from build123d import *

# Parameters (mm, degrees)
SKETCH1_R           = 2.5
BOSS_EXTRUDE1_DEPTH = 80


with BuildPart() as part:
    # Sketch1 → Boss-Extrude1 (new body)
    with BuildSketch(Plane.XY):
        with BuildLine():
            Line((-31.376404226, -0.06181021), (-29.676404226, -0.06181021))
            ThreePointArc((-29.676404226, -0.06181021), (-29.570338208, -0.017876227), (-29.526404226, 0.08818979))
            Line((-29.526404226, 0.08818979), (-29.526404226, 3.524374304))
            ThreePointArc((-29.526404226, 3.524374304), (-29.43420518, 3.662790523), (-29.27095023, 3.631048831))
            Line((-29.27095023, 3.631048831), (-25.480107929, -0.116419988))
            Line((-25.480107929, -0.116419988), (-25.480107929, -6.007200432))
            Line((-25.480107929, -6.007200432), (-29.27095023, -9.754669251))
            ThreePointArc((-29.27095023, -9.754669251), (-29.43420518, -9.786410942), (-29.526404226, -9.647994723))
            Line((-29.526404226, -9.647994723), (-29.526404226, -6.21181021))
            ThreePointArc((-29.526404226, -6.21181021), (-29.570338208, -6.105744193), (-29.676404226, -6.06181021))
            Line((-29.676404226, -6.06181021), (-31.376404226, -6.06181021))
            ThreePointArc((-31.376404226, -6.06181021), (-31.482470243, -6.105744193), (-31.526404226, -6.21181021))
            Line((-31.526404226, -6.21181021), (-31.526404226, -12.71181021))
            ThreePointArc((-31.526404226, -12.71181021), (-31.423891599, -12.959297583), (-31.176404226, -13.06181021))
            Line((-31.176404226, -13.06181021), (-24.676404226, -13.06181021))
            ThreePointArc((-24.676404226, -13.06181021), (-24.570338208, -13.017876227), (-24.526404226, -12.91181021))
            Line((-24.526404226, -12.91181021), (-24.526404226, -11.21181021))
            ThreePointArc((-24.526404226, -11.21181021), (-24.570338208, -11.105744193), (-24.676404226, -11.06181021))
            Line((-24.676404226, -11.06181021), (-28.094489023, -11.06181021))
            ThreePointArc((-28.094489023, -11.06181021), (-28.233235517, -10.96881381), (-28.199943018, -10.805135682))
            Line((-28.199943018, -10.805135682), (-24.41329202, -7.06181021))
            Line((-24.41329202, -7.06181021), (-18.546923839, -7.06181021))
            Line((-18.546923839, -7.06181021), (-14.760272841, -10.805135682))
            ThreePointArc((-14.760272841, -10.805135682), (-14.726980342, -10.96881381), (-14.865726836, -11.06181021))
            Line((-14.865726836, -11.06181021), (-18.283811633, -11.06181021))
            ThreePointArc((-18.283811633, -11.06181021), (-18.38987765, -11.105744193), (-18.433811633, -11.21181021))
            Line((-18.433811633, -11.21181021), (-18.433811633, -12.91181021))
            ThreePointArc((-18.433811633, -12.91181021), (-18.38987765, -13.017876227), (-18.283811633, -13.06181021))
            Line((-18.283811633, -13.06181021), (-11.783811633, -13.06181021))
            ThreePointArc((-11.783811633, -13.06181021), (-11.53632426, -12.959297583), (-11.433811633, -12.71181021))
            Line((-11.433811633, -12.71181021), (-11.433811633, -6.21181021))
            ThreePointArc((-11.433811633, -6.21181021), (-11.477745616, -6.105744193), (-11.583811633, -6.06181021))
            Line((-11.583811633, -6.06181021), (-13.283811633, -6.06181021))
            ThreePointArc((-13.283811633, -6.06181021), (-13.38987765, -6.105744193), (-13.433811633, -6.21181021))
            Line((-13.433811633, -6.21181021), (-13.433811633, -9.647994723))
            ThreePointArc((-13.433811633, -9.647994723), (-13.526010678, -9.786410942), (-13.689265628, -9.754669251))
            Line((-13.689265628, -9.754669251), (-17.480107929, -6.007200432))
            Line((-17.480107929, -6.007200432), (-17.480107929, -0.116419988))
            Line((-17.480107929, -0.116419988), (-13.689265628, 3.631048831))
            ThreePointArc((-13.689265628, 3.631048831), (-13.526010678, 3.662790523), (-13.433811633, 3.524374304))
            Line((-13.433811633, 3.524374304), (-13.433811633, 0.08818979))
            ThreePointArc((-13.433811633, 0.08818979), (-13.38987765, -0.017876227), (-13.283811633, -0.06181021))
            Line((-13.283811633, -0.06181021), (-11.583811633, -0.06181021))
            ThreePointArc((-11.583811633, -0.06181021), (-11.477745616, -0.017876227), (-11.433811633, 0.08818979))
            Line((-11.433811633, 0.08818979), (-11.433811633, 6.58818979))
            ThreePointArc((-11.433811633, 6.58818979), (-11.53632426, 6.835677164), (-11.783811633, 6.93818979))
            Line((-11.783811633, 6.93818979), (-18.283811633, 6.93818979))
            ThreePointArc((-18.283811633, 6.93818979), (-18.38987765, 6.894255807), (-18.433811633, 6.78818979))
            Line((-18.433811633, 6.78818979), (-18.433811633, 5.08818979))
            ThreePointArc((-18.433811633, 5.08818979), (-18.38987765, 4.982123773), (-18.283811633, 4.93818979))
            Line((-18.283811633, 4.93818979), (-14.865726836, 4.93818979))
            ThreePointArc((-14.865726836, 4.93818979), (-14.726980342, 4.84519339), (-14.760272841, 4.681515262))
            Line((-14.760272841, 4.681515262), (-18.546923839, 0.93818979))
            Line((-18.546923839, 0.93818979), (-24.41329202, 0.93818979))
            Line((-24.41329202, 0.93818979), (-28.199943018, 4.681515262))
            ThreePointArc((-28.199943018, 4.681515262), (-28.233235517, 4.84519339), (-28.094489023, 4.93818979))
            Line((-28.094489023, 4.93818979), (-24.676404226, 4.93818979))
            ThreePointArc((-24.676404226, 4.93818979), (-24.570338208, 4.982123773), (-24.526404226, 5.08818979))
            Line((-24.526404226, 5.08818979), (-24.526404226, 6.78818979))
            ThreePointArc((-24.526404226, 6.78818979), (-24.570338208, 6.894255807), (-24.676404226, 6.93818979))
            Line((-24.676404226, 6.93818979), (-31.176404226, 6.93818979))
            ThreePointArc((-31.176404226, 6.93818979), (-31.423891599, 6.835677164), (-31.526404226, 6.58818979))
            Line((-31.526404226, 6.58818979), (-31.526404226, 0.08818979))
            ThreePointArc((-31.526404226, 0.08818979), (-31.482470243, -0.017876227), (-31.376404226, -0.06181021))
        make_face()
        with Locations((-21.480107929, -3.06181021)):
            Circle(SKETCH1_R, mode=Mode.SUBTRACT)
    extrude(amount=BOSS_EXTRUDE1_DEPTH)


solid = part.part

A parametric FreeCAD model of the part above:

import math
import FreeCAD as App
import Part
import Sketcher

V = App.Vector

doc = App.newDocument("Part")
body = doc.addObject("PartDesign::Body", "Body")

sketch1 = doc.addObject("Sketcher::SketchObject", "Sketch")
body.addObject(sketch1)
sketch1.AttachmentSupport = (doc.XY_Plane, [""])
sketch1.MapMode = "FlatFace"
sketch1.addGeometry(Part.LineSegment(V(-31.376404, -0.06181, 0), V(-29.676404, -0.06181, 0)), False)
sketch1.addGeometry(Part.ArcOfCircle(Part.Circle(V(-29.676404, 0.08819, 0), V(0, 0, 1), 0.15), math.radians(-90), math.radians(0)), False)
sketch1.addGeometry(Part.LineSegment(V(-29.526404, 0.08819, 0), V(-29.526404, 3.524374, 0)), False)
sketch1.addGeometry(Part.ArcOfCircle(Part.Circle(V(-29.376404, 3.524374, 0), V(0, 0, 1), 0.15), math.radians(45.329661), math.radians(180)), False)
sketch1.addGeometry(Part.LineSegment(V(-29.27095, 3.631049, 0), V(-25.480108, -0.11642, 0)), False)
sketch1.addGeometry(Part.LineSegment(V(-25.480108, -0.11642, 0), V(-25.480108, -6.0072, 0)), False)
sketch1.addGeometry(Part.LineSegment(V(-25.480108, -6.0072, 0), V(-29.27095, -9.754669, 0)), False)
sketch1.addGeometry(Part.ArcOfCircle(Part.Circle(V(-29.376404, -9.647995, 0), V(0, 0, 1), 0.15), math.radians(-180), math.radians(-45.329662)), False)
sketch1.addGeometry(Part.LineSegment(V(-29.526404, -9.647995, 0), V(-29.526404, -6.21181, 0)), False)
sketch1.addGeometry(Part.ArcOfCircle(Part.Circle(V(-29.676404, -6.21181, 0), V(0, 0, 1), 0.15), math.radians(0), math.radians(90)), False)
sketch1.addGeometry(Part.LineSegment(V(-29.676404, -6.06181, 0), V(-31.376404, -6.06181, 0)), False)
sketch1.addGeometry(Part.ArcOfCircle(Part.Circle(V(-31.376404, -6.21181, 0), V(0, 0, 1), 0.15), math.radians(90), math.radians(180)), False)
sketch1.addGeometry(Part.LineSegment(V(-31.526404, -6.21181, 0), V(-31.526404, -12.71181, 0)), False)
sketch1.addGeometry(Part.ArcOfCircle(Part.Circle(V(-31.176404, -12.71181, 0), V(0, 0, 1), 0.35), math.radians(-180), math.radians(-90)), False)
sketch1.addGeometry(Part.LineSegment(V(-31.176404, -13.06181, 0), V(-24.676404, -13.06181, 0)), False)
sketch1.addGeometry(Part.ArcOfCircle(Part.Circle(V(-24.676404, -12.91181, 0), V(0, 0, 1), 0.15), math.radians(-90), math.radians(0)), False)
sketch1.addGeometry(Part.LineSegment(V(-24.526404, -12.91181, 0), V(-24.526404, -11.21181, 0)), False)
sketch1.addGeometry(Part.ArcOfCircle(Part.Circle(V(-24.676404, -11.21181, 0), V(0, 0, 1), 0.15), math.radians(0), math.radians(90)), False)
sketch1.addGeometry(Part.LineSegment(V(-24.676404, -11.06181, 0), V(-28.094489, -11.06181, 0)), False)
sketch1.addGeometry(Part.ArcOfCircle(Part.Circle(V(-28.094489, -10.91181, 0), V(0, 0, 1), 0.15), math.radians(134.670338), math.radians(270)), False)
sketch1.addGeometry(Part.LineSegment(V(-28.199943, -10.805136, 0), V(-24.413292, -7.06181, 0)), False)
sketch1.addGeometry(Part.LineSegment(V(-24.413292, -7.06181, 0), V(-18.546924, -7.06181, 0)), False)
sketch1.addGeometry(Part.LineSegment(V(-18.546924, -7.06181, 0), V(-14.760273, -10.805136, 0)), False)
sketch1.addGeometry(Part.ArcOfCircle(Part.Circle(V(-14.865727, -10.91181, 0), V(0, 0, 1), 0.15), math.radians(-90), math.radians(45.329662)), False)
sketch1.addGeometry(Part.LineSegment(V(-14.865727, -11.06181, 0), V(-18.283812, -11.06181, 0)), False)
sketch1.addGeometry(Part.ArcOfCircle(Part.Circle(V(-18.283812, -11.21181, 0), V(0, 0, 1), 0.15), math.radians(90), math.radians(180)), False)
sketch1.addGeometry(Part.LineSegment(V(-18.433812, -11.21181, 0), V(-18.433812, -12.91181, 0)), False)
sketch1.addGeometry(Part.ArcOfCircle(Part.Circle(V(-18.283812, -12.91181, 0), V(0, 0, 1), 0.15), math.radians(-180), math.radians(-90)), False)
sketch1.addGeometry(Part.LineSegment(V(-18.283812, -13.06181, 0), V(-11.783812, -13.06181, 0)), False)
sketch1.addGeometry(Part.ArcOfCircle(Part.Circle(V(-11.783812, -12.71181, 0), V(0, 0, 1), 0.35), math.radians(-90), math.radians(0)), False)
sketch1.addGeometry(Part.LineSegment(V(-11.433812, -12.71181, 0), V(-11.433812, -6.21181, 0)), False)
sketch1.addGeometry(Part.ArcOfCircle(Part.Circle(V(-11.583812, -6.21181, 0), V(0, 0, 1), 0.15), math.radians(0), math.radians(90)), False)
sketch1.addGeometry(Part.LineSegment(V(-11.583812, -6.06181, 0), V(-13.283812, -6.06181, 0)), False)
sketch1.addGeometry(Part.ArcOfCircle(Part.Circle(V(-13.283812, -6.21181, 0), V(0, 0, 1), 0.15), math.radians(90), math.radians(180)), False)
sketch1.addGeometry(Part.LineSegment(V(-13.433812, -6.21181, 0), V(-13.433812, -9.647995, 0)), False)
sketch1.addGeometry(Part.ArcOfCircle(Part.Circle(V(-13.583812, -9.647995, 0), V(0, 0, 1), 0.15), math.radians(-134.670338), math.radians(0)), False)
sketch1.addGeometry(Part.LineSegment(V(-13.689266, -9.754669, 0), V(-17.480108, -6.0072, 0)), False)
sketch1.addGeometry(Part.LineSegment(V(-17.480108, -6.0072, 0), V(-17.480108, -0.11642, 0)), False)
sketch1.addGeometry(Part.LineSegment(V(-17.480108, -0.11642, 0), V(-13.689266, 3.631049, 0)), False)
sketch1.addGeometry(Part.ArcOfCircle(Part.Circle(V(-13.583812, 3.524374, 0), V(0, 0, 1), 0.15), math.radians(0), math.radians(134.670339)), False)
sketch1.addGeometry(Part.LineSegment(V(-13.433812, 3.524374, 0), V(-13.433812, 0.08819, 0)), False)
sketch1.addGeometry(Part.ArcOfCircle(Part.Circle(V(-13.283812, 0.08819, 0), V(0, 0, 1), 0.15), math.radians(-180), math.radians(-90)), False)
sketch1.addGeometry(Part.LineSegment(V(-13.283812, -0.06181, 0), V(-11.583812, -0.06181, 0)), False)
sketch1.addGeometry(Part.ArcOfCircle(Part.Circle(V(-11.583812, 0.08819, 0), V(0, 0, 1), 0.15), math.radians(-90), math.radians(0)), False)
sketch1.addGeometry(Part.LineSegment(V(-11.433812, 0.08819, 0), V(-11.433812, 6.58819, 0)), False)
sketch1.addGeometry(Part.ArcOfCircle(Part.Circle(V(-11.783812, 6.58819, 0), V(0, 0, 1), 0.35), math.radians(0), math.radians(90)), False)
sketch1.addGeometry(Part.LineSegment(V(-11.783812, 6.93819, 0), V(-18.283812, 6.93819, 0)), False)
sketch1.addGeometry(Part.ArcOfCircle(Part.Circle(V(-18.283812, 6.78819, 0), V(0, 0, 1), 0.15), math.radians(90), math.radians(180)), False)
sketch1.addGeometry(Part.LineSegment(V(-18.433812, 6.78819, 0), V(-18.433812, 5.08819, 0)), False)
sketch1.addGeometry(Part.ArcOfCircle(Part.Circle(V(-18.283812, 5.08819, 0), V(0, 0, 1), 0.15), math.radians(-180), math.radians(-90)), False)
sketch1.addGeometry(Part.LineSegment(V(-18.283812, 4.93819, 0), V(-14.865727, 4.93819, 0)), False)
sketch1.addGeometry(Part.ArcOfCircle(Part.Circle(V(-14.865727, 4.78819, 0), V(0, 0, 1), 0.15), math.radians(-45.329662), math.radians(90)), False)
sketch1.addGeometry(Part.LineSegment(V(-14.760273, 4.681515, 0), V(-18.546924, 0.93819, 0)), False)
sketch1.addGeometry(Part.LineSegment(V(-18.546924, 0.93819, 0), V(-24.413292, 0.93819, 0)), False)
sketch1.addGeometry(Part.LineSegment(V(-24.413292, 0.93819, 0), V(-28.199943, 4.681515, 0)), False)
sketch1.addGeometry(Part.ArcOfCircle(Part.Circle(V(-28.094489, 4.78819, 0), V(0, 0, 1), 0.15), math.radians(90), math.radians(225.329662)), False)
sketch1.addGeometry(Part.LineSegment(V(-28.094489, 4.93819, 0), V(-24.676404, 4.93819, 0)), False)
sketch1.addGeometry(Part.ArcOfCircle(Part.Circle(V(-24.676404, 5.08819, 0), V(0, 0, 1), 0.15), math.radians(-90), math.radians(0)), False)
sketch1.addGeometry(Part.LineSegment(V(-24.526404, 5.08819, 0), V(-24.526404, 6.78819, 0)), False)
sketch1.addGeometry(Part.ArcOfCircle(Part.Circle(V(-24.676404, 6.78819, 0), V(0, 0, 1), 0.15), math.radians(0), math.radians(90)), False)
sketch1.addGeometry(Part.LineSegment(V(-24.676404, 6.93819, 0), V(-31.176404, 6.93819, 0)), False)
sketch1.addGeometry(Part.ArcOfCircle(Part.Circle(V(-31.176404, 6.58819, 0), V(0, 0, 1), 0.35), math.radians(90), math.radians(180)), False)
sketch1.addGeometry(Part.LineSegment(V(-31.526404, 6.58819, 0), V(-31.526404, 0.08819, 0)), False)
sketch1.addGeometry(Part.ArcOfCircle(Part.Circle(V(-31.376404, 0.08819, 0), V(0, 0, 1), 0.15), math.radians(-180), math.radians(-90)), False)
sketch1.addGeometry(Part.Circle(V(-21.480108, -3.06181, 0), V(0, 0, 1), 2.5), False)
sketch1.addConstraint(Sketcher.Constraint("Tangent", 0, 2, 1, 1))
sketch1.addConstraint(Sketcher.Constraint("Tangent", 1, 2, 2, 1))
sketch1.addConstraint(Sketcher.Constraint("Tangent", 2, 2, 3, 2))
sketch1.addConstraint(Sketcher.Constraint("Tangent", 3, 1, 4, 1))
sketch1.addConstraint(Sketcher.Constraint("Coincident", 4, 2, 5, 1))
sketch1.addConstraint(Sketcher.Constraint("Coincident", 5, 2, 6, 1))
sketch1.addConstraint(Sketcher.Constraint("Tangent", 6, 2, 7, 2))
sketch1.addConstraint(Sketcher.Constraint("Tangent", 7, 1, 8, 1))
sketch1.addConstraint(Sketcher.Constraint("Tangent", 8, 2, 9, 1))
sketch1.addConstraint(Sketcher.Constraint("Tangent", 9, 2, 10, 1))
sketch1.addConstraint(Sketcher.Constraint("Tangent", 10, 2, 11, 1))
sketch1.addConstraint(Sketcher.Constraint("Tangent", 11, 2, 12, 1))
sketch1.addConstraint(Sketcher.Constraint("Tangent", 12, 2, 13, 1))
sketch1.addConstraint(Sketcher.Constraint("Tangent", 13, 2, 14, 1))
sketch1.addConstraint(Sketcher.Constraint("Tangent", 14, 2, 15, 1))
sketch1.addConstraint(Sketcher.Constraint("Tangent", 15, 2, 16, 1))
sketch1.addConstraint(Sketcher.Constraint("Tangent", 16, 2, 17, 1))
sketch1.addConstraint(Sketcher.Constraint("Tangent", 17, 2, 18, 1))
sketch1.addConstraint(Sketcher.Constraint("Tangent", 18, 2, 19, 2))
sketch1.addConstraint(Sketcher.Constraint("Tangent", 19, 1, 20, 1))
sketch1.addConstraint(Sketcher.Constraint("Coincident", 20, 2, 21, 1))
sketch1.addConstraint(Sketcher.Constraint("Coincident", 21, 2, 22, 1))
sketch1.addConstraint(Sketcher.Constraint("Tangent", 22, 2, 23, 2))
sketch1.addConstraint(Sketcher.Constraint("Tangent", 23, 1, 24, 1))
sketch1.addConstraint(Sketcher.Constraint("Tangent", 24, 2, 25, 1))
sketch1.addConstraint(Sketcher.Constraint("Tangent", 25, 2, 26, 1))
sketch1.addConstraint(Sketcher.Constraint("Tangent", 26, 2, 27, 1))
sketch1.addConstraint(Sketcher.Constraint("Tangent", 27, 2, 28, 1))
sketch1.addConstraint(Sketcher.Constraint("Tangent", 28, 2, 29, 1))
sketch1.addConstraint(Sketcher.Constraint("Tangent", 29, 2, 30, 1))
sketch1.addConstraint(Sketcher.Constraint("Tangent", 30, 2, 31, 1))
sketch1.addConstraint(Sketcher.Constraint("Tangent", 31, 2, 32, 1))
sketch1.addConstraint(Sketcher.Constraint("Tangent", 32, 2, 33, 1))
sketch1.addConstraint(Sketcher.Constraint("Tangent", 33, 2, 34, 1))
sketch1.addConstraint(Sketcher.Constraint("Tangent", 34, 2, 35, 2))
sketch1.addConstraint(Sketcher.Constraint("Tangent", 35, 1, 36, 1))
sketch1.addConstraint(Sketcher.Constraint("Coincident", 36, 2, 37, 1))
sketch1.addConstraint(Sketcher.Constraint("Coincident", 37, 2, 38, 1))
sketch1.addConstraint(Sketcher.Constraint("Tangent", 38, 2, 39, 2))
sketch1.addConstraint(Sketcher.Constraint("Tangent", 39, 1, 40, 1))
sketch1.addConstraint(Sketcher.Constraint("Tangent", 40, 2, 41, 1))
sketch1.addConstraint(Sketcher.Constraint("Tangent", 41, 2, 42, 1))
sketch1.addConstraint(Sketcher.Constraint("Tangent", 42, 2, 43, 1))
sketch1.addConstraint(Sketcher.Constraint("Tangent", 43, 2, 44, 1))
sketch1.addConstraint(Sketcher.Constraint("Tangent", 44, 2, 45, 1))
sketch1.addConstraint(Sketcher.Constraint("Tangent", 45, 2, 46, 1))
sketch1.addConstraint(Sketcher.Constraint("Tangent", 46, 2, 47, 1))
sketch1.addConstraint(Sketcher.Constraint("Tangent", 47, 2, 48, 1))
sketch1.addConstraint(Sketcher.Constraint("Tangent", 48, 2, 49, 1))
sketch1.addConstraint(Sketcher.Constraint("Tangent", 49, 2, 50, 1))
sketch1.addConstraint(Sketcher.Constraint("Tangent", 50, 2, 51, 2))
sketch1.addConstraint(Sketcher.Constraint("Tangent", 51, 1, 52, 1))
sketch1.addConstraint(Sketcher.Constraint("Coincident", 52, 2, 53, 1))
sketch1.addConstraint(Sketcher.Constraint("Coincident", 53, 2, 54, 1))
sketch1.addConstraint(Sketcher.Constraint("Tangent", 54, 2, 55, 2))
sketch1.addConstraint(Sketcher.Constraint("Tangent", 55, 1, 56, 1))
sketch1.addConstraint(Sketcher.Constraint("Tangent", 56, 2, 57, 1))
sketch1.addConstraint(Sketcher.Constraint("Tangent", 57, 2, 58, 1))
sketch1.addConstraint(Sketcher.Constraint("Tangent", 58, 2, 59, 1))
sketch1.addConstraint(Sketcher.Constraint("Tangent", 59, 2, 60, 1))
sketch1.addConstraint(Sketcher.Constraint("Tangent", 60, 2, 61, 1))
sketch1.addConstraint(Sketcher.Constraint("Tangent", 61, 2, 62, 1))
sketch1.addConstraint(Sketcher.Constraint("Tangent", 62, 2, 63, 1))
sketch1.addConstraint(Sketcher.Constraint("Tangent", 63, 2, 0, 1))
sketch1.addConstraint(Sketcher.Constraint("Horizontal", 0))
sketch1.addConstraint(Sketcher.Constraint("Vertical", 2))
sketch1.addConstraint(Sketcher.Constraint("Vertical", 5))
sketch1.addConstraint(Sketcher.Constraint("Vertical", 8))
sketch1.addConstraint(Sketcher.Constraint("Horizontal", 10))
sketch1.addConstraint(Sketcher.Constraint("Vertical", 12))
sketch1.addConstraint(Sketcher.Constraint("Horizontal", 14))
sketch1.addConstraint(Sketcher.Constraint("Vertical", 16))
sketch1.addConstraint(Sketcher.Constraint("Horizontal", 18))
sketch1.addConstraint(Sketcher.Constraint("Horizontal", 21))
sketch1.addConstraint(Sketcher.Constraint("Horizontal", 24))
sketch1.addConstraint(Sketcher.Constraint("Vertical", 26))
sketch1.addConstraint(Sketcher.Constraint("Horizontal", 28))
sketch1.addConstraint(Sketcher.Constraint("Vertical", 30))
sketch1.addConstraint(Sketcher.Constraint("Horizontal", 32))
sketch1.addConstraint(Sketcher.Constraint("Vertical", 34))
sketch1.addConstraint(Sketcher.Constraint("Vertical", 37))
sketch1.addConstraint(Sketcher.Constraint("Vertical", 40))
sketch1.addConstraint(Sketcher.Constraint("Horizontal", 42))
sketch1.addConstraint(Sketcher.Constraint("Vertical", 44))
sketch1.addConstraint(Sketcher.Constraint("Horizontal", 46))
sketch1.addConstraint(Sketcher.Constraint("Vertical", 48))
sketch1.addConstraint(Sketcher.Constraint("Horizontal", 50))
sketch1.addConstraint(Sketcher.Constraint("Horizontal", 53))
sketch1.addConstraint(Sketcher.Constraint("Horizontal", 56))
sketch1.addConstraint(Sketcher.Constraint("Vertical", 58))
sketch1.addConstraint(Sketcher.Constraint("Horizontal", 60))
sketch1.addConstraint(Sketcher.Constraint("Vertical", 62))
sketch1.addConstraint(Sketcher.Constraint("Equal", 1, 3))
sketch1.addConstraint(Sketcher.Constraint("Equal", 3, 7))
sketch1.addConstraint(Sketcher.Constraint("Equal", 7, 9))
sketch1.addConstraint(Sketcher.Constraint("Equal", 9, 11))
sketch1.addConstraint(Sketcher.Constraint("Equal", 11, 15))
sketch1.addConstraint(Sketcher.Constraint("Equal", 15, 17))
sketch1.addConstraint(Sketcher.Constraint("Equal", 17, 19))
sketch1.addConstraint(Sketcher.Constraint("Equal", 19, 23))
sketch1.addConstraint(Sketcher.Constraint("Equal", 23, 25))
sketch1.addConstraint(Sketcher.Constraint("Equal", 25, 27))
sketch1.addConstraint(Sketcher.Constraint("Equal", 13, 29))
sketch1.addConstraint(Sketcher.Constraint("Equal", 27, 31))
sketch1.addConstraint(Sketcher.Constraint("Equal", 31, 33))
sketch1.addConstraint(Sketcher.Constraint("Equal", 33, 35))
sketch1.addConstraint(Sketcher.Constraint("Equal", 35, 39))
sketch1.addConstraint(Sketcher.Constraint("Equal", 39, 41))
sketch1.addConstraint(Sketcher.Constraint("Equal", 41, 43))
sketch1.addConstraint(Sketcher.Constraint("Equal", 29, 45))
sketch1.addConstraint(Sketcher.Constraint("Equal", 43, 47))
sketch1.addConstraint(Sketcher.Constraint("Equal", 47, 49))
sketch1.addConstraint(Sketcher.Constraint("Equal", 49, 51))
sketch1.addConstraint(Sketcher.Constraint("Equal", 51, 55))
sketch1.addConstraint(Sketcher.Constraint("Equal", 55, 57))
sketch1.addConstraint(Sketcher.Constraint("Equal", 57, 59))
sketch1.addConstraint(Sketcher.Constraint("Equal", 45, 61))
sketch1.addConstraint(Sketcher.Constraint("Equal", 59, 63))
sketch1.addConstraint(Sketcher.Constraint("Parallel", 6, 20))
sketch1.addConstraint(Sketcher.Constraint("Parallel", 4, 22))
sketch1.addConstraint(Sketcher.Constraint("Parallel", 22, 36))
sketch1.addConstraint(Sketcher.Constraint("Parallel", 20, 38))
sketch1.addConstraint(Sketcher.Constraint("Parallel", 38, 52))
sketch1.addConstraint(Sketcher.Constraint("Parallel", 36, 54))
sketch1.addConstraint(Sketcher.Constraint("Horizontal", 19, 3, 23, 3))
sketch1.addConstraint(Sketcher.Constraint("Horizontal", 15, 3, 27, 3))
sketch1.addConstraint(Sketcher.Constraint("Horizontal", 11, 3, 31, 3))
sketch1.addConstraint(Sketcher.Constraint("Horizontal", 7, 3, 35, 3))
sketch1.addConstraint(Sketcher.Constraint("Horizontal", 3, 3, 39, 3))
sketch1.addConstraint(Sketcher.Constraint("Horizontal", 1, 3, 41, 3))
sketch1.addConstraint(Sketcher.Constraint("Horizontal", 51, 3, 55, 3))
sketch1.addConstraint(Sketcher.Constraint("Horizontal", 47, 3, 59, 3))
sketch1.addConstraint(Sketcher.Constraint("Horizontal", 19, 1, 22, 2))
sketch1.addConstraint(Sketcher.Constraint("Horizontal", 5, 2, 36, 2))
sketch1.addConstraint(Sketcher.Constraint("Horizontal", 4, 2, 37, 2))
sketch1.addConstraint(Sketcher.Constraint("Vertical", 3, 3, 7, 3))
sketch1.addConstraint(Sketcher.Constraint("Vertical", 31, 3, 43, 3))
sketch1.addConstraint(Sketcher.Constraint("Vertical", 27, 3, 47, 3))
sketch1.addConstraint(Sketcher.Constraint("Vertical", 23, 3, 51, 3))
sketch1.addConstraint(Sketcher.Constraint("Vertical", 19, 3, 55, 3))
sketch1.addConstraint(Sketcher.Constraint("Vertical", 17, 3, 57, 3))
sketch1.addConstraint(Sketcher.Constraint("Vertical", 13, 3, 61, 3))
sketch1.addConstraint(Sketcher.Constraint("Vertical", 21, 2, 52, 2))
sketch1.addConstraint(Sketcher.Constraint("Equal", 18, 24))
sketch1.addConstraint(Sketcher.Constraint("Equal", 14, 28))
sketch1.addConstraint(Sketcher.Constraint("Equal", 10, 32))
sketch1.addConstraint(Sketcher.Constraint("Equal", 2, 8))
sketch1.addConstraint(Sketcher.Constraint("Equal", 60, 12))
sketch1.addConstraint(Sketcher.Constraint("Equal", 42, 16))
sketch1.addConstraint(Sketcher.Constraint("Equal", 30, 44))
sketch1.addConstraint(Sketcher.Constraint("Equal", 26, 48))
sketch1.addConstraint(Sketcher.Constraint("Diameter", 64, 5.0))
sketch1.addConstraint(Sketcher.Constraint("Radius", 1, 0.15))
sketch1.addConstraint(Sketcher.Constraint("Radius", 13, 0.35))
sketch1.addConstraint(Sketcher.Constraint("DistanceX", 0, 1, 0, 2, 1.7))
sketch1.addConstraint(Sketcher.Constraint("DistanceX", 14, 1, 14, 2, 6.5))
sketch1.addConstraint(Sketcher.Constraint("DistanceX", 21, 1, 21, 2, 5.866368))
sketch1.addConstraint(Sketcher.Constraint("DistanceY", 5, 2, 5, 1, 5.89078))
sketch1.addConstraint(Sketcher.Constraint("DistanceY", 5, 2, -1, 1, 6.0072))
sketch1.addConstraint(Sketcher.Constraint("Distance", 4, 5.330479))
sketch1.addConstraint(Sketcher.Constraint("DistanceX", 18, 2, 18, 1, 3.418085))
sketch1.addConstraint(Sketcher.Constraint("DistanceY", 2, 1, 2, 2, 3.436185))
sketch1.addConstraint(Sketcher.Constraint("DistanceY", -1, 1, 1, 3, 0.08819))
sketch1.addConstraint(Sketcher.Constraint("DistanceX", 19, 3, -1, 1, 28.094489))
sketch1.addConstraint(Sketcher.Constraint("DistanceX", 25, 3, -1, 1, 18.283812))
sketch1.addConstraint(Sketcher.Constraint("DistanceY", 64, 3, -1, 1, 3.06181))
sketch1.addConstraint(Sketcher.Constraint("DistanceX", 64, 3, -1, 1, 21.480108))
pad1 = doc.addObject("PartDesign::Pad", "Pad")
body.addObject(pad1)
pad1.Profile = sketch1
pad1.Length = 80

doc.recompute()
